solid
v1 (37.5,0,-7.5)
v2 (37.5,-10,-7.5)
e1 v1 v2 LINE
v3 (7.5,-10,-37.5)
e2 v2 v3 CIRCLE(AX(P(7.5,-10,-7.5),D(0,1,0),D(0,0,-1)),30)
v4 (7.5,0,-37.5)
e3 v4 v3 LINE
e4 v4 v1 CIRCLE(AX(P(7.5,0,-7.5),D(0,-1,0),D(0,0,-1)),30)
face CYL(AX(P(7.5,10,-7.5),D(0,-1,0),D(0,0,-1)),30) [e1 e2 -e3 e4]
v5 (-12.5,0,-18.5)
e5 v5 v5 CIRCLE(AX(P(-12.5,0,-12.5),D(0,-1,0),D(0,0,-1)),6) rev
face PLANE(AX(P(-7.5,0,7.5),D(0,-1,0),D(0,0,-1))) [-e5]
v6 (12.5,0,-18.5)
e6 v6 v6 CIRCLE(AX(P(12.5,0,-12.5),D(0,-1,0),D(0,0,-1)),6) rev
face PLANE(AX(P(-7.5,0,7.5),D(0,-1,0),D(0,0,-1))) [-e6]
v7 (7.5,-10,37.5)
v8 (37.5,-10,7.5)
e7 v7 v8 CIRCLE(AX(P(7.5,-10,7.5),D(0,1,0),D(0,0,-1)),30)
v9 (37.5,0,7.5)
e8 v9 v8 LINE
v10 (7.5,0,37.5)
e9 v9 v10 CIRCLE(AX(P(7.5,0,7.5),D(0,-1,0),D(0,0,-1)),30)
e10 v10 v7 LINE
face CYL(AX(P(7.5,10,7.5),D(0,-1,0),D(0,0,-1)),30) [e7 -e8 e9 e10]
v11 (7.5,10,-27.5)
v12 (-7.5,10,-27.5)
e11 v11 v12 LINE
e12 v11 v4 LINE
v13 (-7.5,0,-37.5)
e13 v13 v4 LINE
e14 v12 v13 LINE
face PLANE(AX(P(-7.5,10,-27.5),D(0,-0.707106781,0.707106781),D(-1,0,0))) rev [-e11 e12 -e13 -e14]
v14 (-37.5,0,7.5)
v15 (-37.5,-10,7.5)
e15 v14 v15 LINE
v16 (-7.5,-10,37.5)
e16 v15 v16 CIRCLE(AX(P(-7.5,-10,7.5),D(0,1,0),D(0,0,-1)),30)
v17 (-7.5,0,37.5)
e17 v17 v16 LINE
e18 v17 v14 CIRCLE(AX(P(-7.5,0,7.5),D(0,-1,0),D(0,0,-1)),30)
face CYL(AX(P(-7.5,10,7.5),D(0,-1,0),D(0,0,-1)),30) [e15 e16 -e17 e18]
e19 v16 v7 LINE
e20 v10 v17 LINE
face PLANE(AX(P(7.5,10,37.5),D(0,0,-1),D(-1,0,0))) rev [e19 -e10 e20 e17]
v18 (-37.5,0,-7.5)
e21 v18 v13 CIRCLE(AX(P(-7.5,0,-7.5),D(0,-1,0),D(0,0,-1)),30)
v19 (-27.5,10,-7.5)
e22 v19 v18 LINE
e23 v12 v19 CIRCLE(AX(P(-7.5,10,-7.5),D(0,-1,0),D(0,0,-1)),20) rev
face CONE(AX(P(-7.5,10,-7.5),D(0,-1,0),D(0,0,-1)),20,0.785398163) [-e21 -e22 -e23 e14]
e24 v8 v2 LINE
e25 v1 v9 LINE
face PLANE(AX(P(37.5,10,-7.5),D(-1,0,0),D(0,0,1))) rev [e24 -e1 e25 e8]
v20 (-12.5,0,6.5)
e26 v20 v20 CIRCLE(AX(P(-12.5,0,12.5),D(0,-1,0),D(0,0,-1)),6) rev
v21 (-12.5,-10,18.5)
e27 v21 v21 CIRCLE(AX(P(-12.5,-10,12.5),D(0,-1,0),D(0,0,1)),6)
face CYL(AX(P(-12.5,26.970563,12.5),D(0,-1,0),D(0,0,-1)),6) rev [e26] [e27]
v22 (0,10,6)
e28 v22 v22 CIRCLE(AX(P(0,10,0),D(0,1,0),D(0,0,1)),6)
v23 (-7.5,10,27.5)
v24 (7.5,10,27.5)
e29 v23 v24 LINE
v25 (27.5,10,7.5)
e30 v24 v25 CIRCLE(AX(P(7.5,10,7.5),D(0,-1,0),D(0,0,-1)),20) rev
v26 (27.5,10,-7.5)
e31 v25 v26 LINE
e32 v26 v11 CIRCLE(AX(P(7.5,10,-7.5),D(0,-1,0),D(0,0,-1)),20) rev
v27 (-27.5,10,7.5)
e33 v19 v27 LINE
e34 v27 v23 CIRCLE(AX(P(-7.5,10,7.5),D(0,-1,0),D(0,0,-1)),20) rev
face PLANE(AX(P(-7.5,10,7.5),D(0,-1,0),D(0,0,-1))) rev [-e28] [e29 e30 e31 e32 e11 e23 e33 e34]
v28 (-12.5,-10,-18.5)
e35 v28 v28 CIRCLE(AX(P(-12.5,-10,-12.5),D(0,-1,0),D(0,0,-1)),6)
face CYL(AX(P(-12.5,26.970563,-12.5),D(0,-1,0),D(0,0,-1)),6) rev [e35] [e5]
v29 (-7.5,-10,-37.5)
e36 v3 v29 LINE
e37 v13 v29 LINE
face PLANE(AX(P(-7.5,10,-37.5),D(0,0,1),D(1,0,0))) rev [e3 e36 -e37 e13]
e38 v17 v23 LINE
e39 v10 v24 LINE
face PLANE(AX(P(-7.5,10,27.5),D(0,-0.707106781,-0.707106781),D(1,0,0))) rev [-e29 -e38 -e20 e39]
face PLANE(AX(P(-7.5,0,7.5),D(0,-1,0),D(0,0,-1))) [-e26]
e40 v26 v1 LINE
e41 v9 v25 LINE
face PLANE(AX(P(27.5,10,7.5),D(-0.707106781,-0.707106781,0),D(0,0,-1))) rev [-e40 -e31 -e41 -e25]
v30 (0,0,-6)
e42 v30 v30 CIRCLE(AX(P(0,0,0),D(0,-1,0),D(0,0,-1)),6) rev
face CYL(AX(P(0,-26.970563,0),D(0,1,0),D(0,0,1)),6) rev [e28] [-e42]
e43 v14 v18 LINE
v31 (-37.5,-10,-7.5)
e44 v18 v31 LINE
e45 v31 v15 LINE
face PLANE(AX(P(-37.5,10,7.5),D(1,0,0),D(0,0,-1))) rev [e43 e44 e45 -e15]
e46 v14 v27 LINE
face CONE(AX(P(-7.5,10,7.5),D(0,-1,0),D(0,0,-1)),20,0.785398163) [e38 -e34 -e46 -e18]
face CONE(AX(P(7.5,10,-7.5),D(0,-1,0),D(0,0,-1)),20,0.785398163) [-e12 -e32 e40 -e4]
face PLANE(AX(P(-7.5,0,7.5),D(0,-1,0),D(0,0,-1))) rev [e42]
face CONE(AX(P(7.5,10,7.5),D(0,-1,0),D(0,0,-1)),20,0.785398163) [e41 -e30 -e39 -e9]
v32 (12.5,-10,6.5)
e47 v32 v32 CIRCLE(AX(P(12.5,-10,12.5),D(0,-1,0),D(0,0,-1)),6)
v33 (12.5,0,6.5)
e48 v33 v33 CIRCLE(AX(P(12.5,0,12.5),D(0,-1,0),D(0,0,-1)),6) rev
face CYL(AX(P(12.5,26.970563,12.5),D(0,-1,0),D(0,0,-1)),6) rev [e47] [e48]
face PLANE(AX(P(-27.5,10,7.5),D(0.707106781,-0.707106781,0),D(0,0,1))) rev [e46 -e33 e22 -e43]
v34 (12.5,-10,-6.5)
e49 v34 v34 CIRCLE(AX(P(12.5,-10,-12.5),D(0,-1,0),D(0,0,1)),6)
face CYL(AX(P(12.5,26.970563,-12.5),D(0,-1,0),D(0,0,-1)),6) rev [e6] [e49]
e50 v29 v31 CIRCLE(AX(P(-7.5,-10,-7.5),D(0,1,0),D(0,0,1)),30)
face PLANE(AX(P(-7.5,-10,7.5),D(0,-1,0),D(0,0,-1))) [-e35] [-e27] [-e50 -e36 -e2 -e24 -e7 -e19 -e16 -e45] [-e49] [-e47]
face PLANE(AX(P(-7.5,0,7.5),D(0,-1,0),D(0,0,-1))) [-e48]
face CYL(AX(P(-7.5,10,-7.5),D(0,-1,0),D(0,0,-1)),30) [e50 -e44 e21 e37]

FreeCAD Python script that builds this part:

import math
import FreeCAD as App
import Part
import Sketcher
from FreeCAD import Vector
Q = App.Units.Quantity


def edges_at(feature, points):
    """Names of the edges that pass closest to the given points."""
    edges = feature.Shape.Edges
    near = lambda p: min(range(len(edges)), key=lambda i: edges[i].distToShape(Part.Vertex(*p))[0])
    return sorted({f"Edge{near(p) + 1}" for p in points})

doc = App.newDocument("Part")
body = doc.addObject("PartDesign::Body", "Body")

# Sketch on XZ plane
sketch1 = body.newObject("Sketcher::SketchObject", "Sketch")
sketch1.AttachmentSupport = (doc.getObject("XZ_Plane"), [""])
sketch1.MapMode = "FlatFace"
sketch1.addGeometry([
    Part.LineSegment(Vector(8, -38, 0), Vector(-8, -38, 0)),  # 0
    Part.ArcOfCircle(Part.Circle(Vector(-8, -8, 0), Vector(0, 0, 1), 30), math.radians(180), math.radians(270)),  # 1
    Part.LineSegment(Vector(-38, -8, 0), Vector(-38, 8, 0)),  # 2
    Part.ArcOfCircle(Part.Circle(Vector(-8, 8, 0), Vector(0, 0, 1), 30), math.radians(90), math.radians(180)),  # 3
    Part.LineSegment(Vector(-8, 38, 0), Vector(8, 38, 0)),  # 4
    Part.ArcOfCircle(Part.Circle(Vector(8, 8, 0), Vector(0, 0, 1), 30), math.radians(0), math.radians(90)),  # 5
    Part.LineSegment(Vector(38, 8, 0), Vector(38, -8, 0)),  # 6
    Part.ArcOfCircle(Part.Circle(Vector(8, -8, 0), Vector(0, 0, 1), 30), math.radians(-90), math.radians(0)),  # 7
], False)
sketch1.addConstraint([
    Sketcher.Constraint("Tangent", 0, 2, 1, 2),
    Sketcher.Constraint("Tangent", 1, 1, 2, 1),
    Sketcher.Constraint("Tangent", 2, 2, 3, 2),
    Sketcher.Constraint("Tangent", 3, 1, 4, 1),
    Sketcher.Constraint("Tangent", 4, 2, 5, 2),
    Sketcher.Constraint("Tangent", 5, 1, 6, 1),
    Sketcher.Constraint("Tangent", 6, 2, 7, 2),
    Sketcher.Constraint("Tangent", 7, 1, 0, 1),
    Sketcher.Constraint("Horizontal", 0),
    Sketcher.Constraint("Vertical", 2),
    Sketcher.Constraint("Horizontal", 4),
    Sketcher.Constraint("Vertical", 6),
    Sketcher.Constraint("Equal", 1, 3),
    Sketcher.Constraint("Equal", 3, 5),
    Sketcher.Constraint("Equal", 5, 7),
    Sketcher.Constraint("Symmetric", 1, 3, 5, 3, -1, 1),
    Sketcher.Constraint("Equal", 4, 2),
    Sketcher.Constraint("Radius", 1, Q("30 mm")),
    Sketcher.Constraint("DistanceX", 0, 2, 0, 1, Q("15 mm")),
])
pad1 = body.newObject("PartDesign::Pad", "Pad")
pad1.Profile = sketch1
pad1.Length = 20
pad1.Midplane = True
doc.recompute()

chamfer = body.newObject("PartDesign::Chamfer", "Chamfer")
chamfer.Base = (pad1, edges_at(pad1, [
    (28.713, 10, 28.713),
    (37.5, 10, 0),
    (28.713, 10, -28.713),
    (0, 10, -37.5),
    (-28.713, 10, -28.713),
    (-37.5, 10, 0),
    (-28.713, 10, 28.713),
    (0, 10, 37.5),
]))
chamfer.Size = 10

# Sketch on XZ plane
sketch2 = body.newObject("Sketcher::SketchObject", "Sketch001")
sketch2.AttachmentSupport = (doc.getObject("XZ_Plane"), [""])
sketch2.MapMode = "FlatFace"
sketch2.AttachmentOffset = App.Placement(Vector(0, 0, 10), App.Rotation())
sketch2.addGeometry([
    Part.Circle(Vector(12, 12, 0), Vector(0, 0, 1), 6),
    Part.Circle(Vector(-12, 12, 0), Vector(0, 0, 1), 6),
    Part.Circle(Vector(12, -12, 0), Vector(0, 0, 1), 6),
    Part.Circle(Vector(-12, -12, 0), Vector(0, 0, 1), 6),
], False)
sketch2.addConstraint([
    Sketcher.Constraint("Equal", 0, 1),
    Sketcher.Constraint("Equal", 1, 2),
    Sketcher.Constraint("Equal", 2, 3),
    Sketcher.Constraint("Symmetric", 1, 3, 2, 3, -1, 1),
    Sketcher.Constraint("Symmetric", 0, 3, 3, 3, -1, 1),
    Sketcher.Constraint("Symmetric", 0, 3, 1, 3, -2),
    Sketcher.Constraint("Diameter", 0, Q("12 mm")),
    Sketcher.Constraint("DistanceX", 1, 3, 0, 3, Q("25 mm")),
    Sketcher.Constraint("DistanceY", 2, 3, 0, 3, Q("25 mm")),
])
pocket1 = body.newObject("PartDesign::Pocket", "Pocket")
pocket1.Profile = sketch2
pocket1.Length = 10

# Sketch on XZ plane
sketch3 = body.newObject("Sketcher::SketchObject", "Sketch002")
sketch3.AttachmentSupport = (doc.getObject("XZ_Plane"), [""])
sketch3.MapMode = "FlatFace"
sketch3.AttachmentOffset = App.Placement(Vector(0, 0, -10), App.Rotation())
sketch3.addGeometry(Part.Circle(Vector(0, 0, 0), Vector(0, 0, 1), 6), False)
sketch3.addConstraint([
    Sketcher.Constraint("Coincident", 0, 3, -1, 1),
    Sketcher.Constraint("Diameter", 0, Q("12 mm")),
])
pocket2 = body.newObject("PartDesign::Pocket", "Pocket001")
pocket2.Profile = sketch3
pocket2.Length = 10
pocket2.Reversed = True

doc.recompute()
